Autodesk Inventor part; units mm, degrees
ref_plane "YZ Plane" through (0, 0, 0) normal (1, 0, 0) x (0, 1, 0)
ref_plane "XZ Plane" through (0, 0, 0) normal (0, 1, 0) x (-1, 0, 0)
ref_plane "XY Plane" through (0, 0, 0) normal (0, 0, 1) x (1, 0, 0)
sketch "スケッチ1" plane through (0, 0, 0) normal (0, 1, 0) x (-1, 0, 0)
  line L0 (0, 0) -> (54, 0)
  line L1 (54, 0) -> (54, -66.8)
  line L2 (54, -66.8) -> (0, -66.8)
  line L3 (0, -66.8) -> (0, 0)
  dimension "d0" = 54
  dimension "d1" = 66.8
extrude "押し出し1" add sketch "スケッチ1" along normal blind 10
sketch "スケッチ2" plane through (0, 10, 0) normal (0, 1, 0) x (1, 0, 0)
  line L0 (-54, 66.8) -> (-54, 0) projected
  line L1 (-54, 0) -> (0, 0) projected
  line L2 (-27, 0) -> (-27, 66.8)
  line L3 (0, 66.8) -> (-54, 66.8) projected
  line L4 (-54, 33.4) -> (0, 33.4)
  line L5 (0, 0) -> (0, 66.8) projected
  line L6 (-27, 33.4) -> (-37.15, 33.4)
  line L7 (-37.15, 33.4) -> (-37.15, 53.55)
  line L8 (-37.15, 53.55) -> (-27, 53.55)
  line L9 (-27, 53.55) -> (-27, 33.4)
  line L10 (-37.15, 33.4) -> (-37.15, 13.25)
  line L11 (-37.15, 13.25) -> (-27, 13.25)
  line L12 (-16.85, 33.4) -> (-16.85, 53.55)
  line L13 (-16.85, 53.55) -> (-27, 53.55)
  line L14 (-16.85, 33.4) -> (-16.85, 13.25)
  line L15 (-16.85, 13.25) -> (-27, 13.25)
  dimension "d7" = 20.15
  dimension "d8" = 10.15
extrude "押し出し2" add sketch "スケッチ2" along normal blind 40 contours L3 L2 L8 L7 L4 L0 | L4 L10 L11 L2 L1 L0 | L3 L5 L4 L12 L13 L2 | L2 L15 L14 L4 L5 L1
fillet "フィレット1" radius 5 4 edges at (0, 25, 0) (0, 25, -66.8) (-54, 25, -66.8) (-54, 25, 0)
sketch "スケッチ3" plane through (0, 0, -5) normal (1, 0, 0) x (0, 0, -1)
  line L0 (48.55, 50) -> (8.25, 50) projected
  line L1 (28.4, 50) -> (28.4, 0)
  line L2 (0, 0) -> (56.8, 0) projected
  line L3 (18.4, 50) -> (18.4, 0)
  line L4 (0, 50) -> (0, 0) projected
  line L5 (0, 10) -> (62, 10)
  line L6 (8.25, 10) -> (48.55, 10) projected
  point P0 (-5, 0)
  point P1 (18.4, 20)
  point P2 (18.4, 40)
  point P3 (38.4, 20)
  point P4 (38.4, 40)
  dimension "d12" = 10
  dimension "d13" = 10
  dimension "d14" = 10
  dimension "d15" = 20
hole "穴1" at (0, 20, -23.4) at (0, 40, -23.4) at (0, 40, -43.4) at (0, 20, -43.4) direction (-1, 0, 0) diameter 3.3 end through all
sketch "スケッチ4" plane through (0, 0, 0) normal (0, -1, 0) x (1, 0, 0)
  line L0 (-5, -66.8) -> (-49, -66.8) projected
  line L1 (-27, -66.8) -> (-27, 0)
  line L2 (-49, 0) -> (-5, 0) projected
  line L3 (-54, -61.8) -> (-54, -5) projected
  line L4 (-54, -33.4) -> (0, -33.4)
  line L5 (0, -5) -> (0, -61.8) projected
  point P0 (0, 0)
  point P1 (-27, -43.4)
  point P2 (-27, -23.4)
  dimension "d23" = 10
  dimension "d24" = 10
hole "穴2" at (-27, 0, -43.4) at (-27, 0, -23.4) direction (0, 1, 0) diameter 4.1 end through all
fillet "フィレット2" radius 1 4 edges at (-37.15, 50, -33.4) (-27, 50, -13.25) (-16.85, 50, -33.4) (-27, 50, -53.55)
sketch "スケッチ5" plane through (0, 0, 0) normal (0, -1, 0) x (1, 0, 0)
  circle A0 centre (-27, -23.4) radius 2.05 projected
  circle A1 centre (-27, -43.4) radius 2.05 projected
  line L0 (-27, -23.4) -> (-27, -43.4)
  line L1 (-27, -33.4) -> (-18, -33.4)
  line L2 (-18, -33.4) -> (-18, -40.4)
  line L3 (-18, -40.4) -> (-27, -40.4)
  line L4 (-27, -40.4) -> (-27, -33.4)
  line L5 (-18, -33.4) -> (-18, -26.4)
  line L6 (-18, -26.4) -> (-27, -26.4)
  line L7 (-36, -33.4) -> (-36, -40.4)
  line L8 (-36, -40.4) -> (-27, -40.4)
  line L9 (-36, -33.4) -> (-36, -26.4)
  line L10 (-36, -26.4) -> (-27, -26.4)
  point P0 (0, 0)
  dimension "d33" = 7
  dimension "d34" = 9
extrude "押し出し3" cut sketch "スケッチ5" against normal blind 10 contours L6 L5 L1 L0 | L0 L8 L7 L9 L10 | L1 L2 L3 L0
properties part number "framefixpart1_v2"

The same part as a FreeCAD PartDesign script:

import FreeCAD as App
import Part
import Sketcher
from FreeCAD import Vector


def edges_at(feature, points):
    """Names of the edges that pass closest to the given points."""
    edges = feature.Shape.Edges
    near = lambda p: min(range(len(edges)), key=lambda i: edges[i].distToShape(Part.Vertex(*p))[0])
    return sorted({f"Edge{near(p) + 1}" for p in points})


def add_polygon(sketch, points):
    """Adds a closed chain of lines whose ends are joined by coincident constraints."""
    first, n = sketch.GeometryCount, len(points)
    for a, b in zip(points, points[1:] + points[:1]):
        sketch.addGeometry(Part.LineSegment(App.Vector(*a, 0), App.Vector(*b, 0)), False)
    for i in range(n):
        sketch.addConstraint(Sketcher.Constraint("Coincident", first + i, 2, first + (i + 1) % n, 1))

doc = App.newDocument("Part")
body = doc.addObject("PartDesign::Body", "Body")

# Sketch on XZ plane
sketch1 = doc.addObject("Sketcher::SketchObject", "Sketch")
body.addObject(sketch1)
sketch1.AttachmentSupport = (doc.XZ_Plane, [""])
sketch1.MapMode = "FlatFace"
add_polygon(sketch1, [(-54, 0), (0, 0), (0, -66.8), (-54, -66.8)])  # lines 0-3
sketch1.addConstraint([
    Sketcher.Constraint("Horizontal", 0),
    Sketcher.Constraint("Vertical", 1),
    Sketcher.Constraint("Horizontal", 2),
    Sketcher.Constraint("Vertical", 3),
    Sketcher.Constraint("Coincident", 0, 2, -1, 1),
    Sketcher.Constraint("DistanceX", 0, 1, 0, 2, 54.0),
    Sketcher.Constraint("DistanceY", 1, 2, 1, 1, 66.8),
])
pad1 = doc.addObject("PartDesign::Pad", "Pad")
body.addObject(pad1)
pad1.Profile = sketch1
pad1.Length = 10
pad1.Reversed = True

# Sketch on XZ plane
sketch2 = doc.addObject("Sketcher::SketchObject", "Sketch001")
body.addObject(sketch2)
sketch2.AttachmentSupport = (doc.XZ_Plane, [""])
sketch2.MapMode = "FlatFace"
sketch2.AttachmentOffset = App.Placement(Vector(0, 0, -10), App.Rotation())
add_polygon(sketch2, [(-54, -66.8), (-54, 0), (0, 0), (0, -66.8)])  # lines 0-3
add_polygon(sketch2, [(-37.15, -53.55), (-16.85, -53.55), (-16.85, -13.25), (-37.15, -13.25)])  # lines 4-7
sketch2.addConstraint([
    Sketcher.Constraint("Vertical", 0),
    Sketcher.Constraint("Horizontal", 1),
    Sketcher.Constraint("Vertical", 2),
    Sketcher.Constraint("Horizontal", 3),
    Sketcher.Constraint("Horizontal", 4),
    Sketcher.Constraint("Vertical", 5),
    Sketcher.Constraint("Horizontal", 6),
    Sketcher.Constraint("Vertical", 7),
    Sketcher.Constraint("Coincident", 1, 2, -1, 1),
    Sketcher.Constraint("DistanceX", 1, 1, 1, 2, 54.0),
    Sketcher.Constraint("DistanceX", 4, 1, 4, 2, 20.3),
    Sketcher.Constraint("DistanceY", 0, 1, 0, 2, 66.8),
    Sketcher.Constraint("DistanceY", 5, 1, 5, 2, 40.3),
    Sketcher.Constraint("DistanceX", 4, 2, -1, 1, 16.85),
    Sketcher.Constraint("DistanceY", 4, 2, -1, 1, 53.55),
])
pad2 = doc.addObject("PartDesign::Pad", "Pad001")
body.addObject(pad2)
pad2.Profile = sketch2
pad2.Length = 40
pad2.Reversed = True
doc.recompute()

fillet = doc.addObject("PartDesign::Fillet", "Fillet")
body.addObject(fillet)
fillet.Base = (pad2, edges_at(pad2, [
    (0, 25, 0),
    (0, 25, -66.8),
    (-54, 25, -66.8),
    (-54, 25, 0),
]))
fillet.Radius = 5

# Sketch on YZ plane
sketch3 = doc.addObject("Sketcher::SketchObject", "Sketch002")
body.addObject(sketch3)
sketch3.AttachmentSupport = (doc.YZ_Plane, [""])
sketch3.MapMode = "FlatFace"
sketch3.addGeometry([
    Part.Circle(Vector(20, -23.4, 0), Vector(0, 0, 1), 1.65),
    Part.Circle(Vector(40, -23.4, 0), Vector(0, 0, 1), 1.65),
    Part.Circle(Vector(40, -43.4, 0), Vector(0, 0, 1), 1.65),
    Part.Circle(Vector(20, -43.4, 0), Vector(0, 0, 1), 1.65),
], False)
sketch3.addConstraint([
    Sketcher.Constraint("Equal", 0, 1),
    Sketcher.Constraint("Equal", 1, 2),
    Sketcher.Constraint("Equal", 2, 3),
    Sketcher.Constraint("Horizontal", 0, 3, 1, 3),
    Sketcher.Constraint("Horizontal", 2, 3, 3, 3),
    Sketcher.Constraint("Vertical", 1, 3, 2, 3),
    Sketcher.Constraint("Vertical", 0, 3, 3, 3),
    Sketcher.Constraint("Diameter", 0, 3.3),
    Sketcher.Constraint("DistanceX", -1, 1, 0, 3, 20.0),
    Sketcher.Constraint("DistanceX", -1, 1, 1, 3, 40.0),
    Sketcher.Constraint("DistanceY", 2, 3, 1, 3, 20.0),
    Sketcher.Constraint("DistanceY", 0, 3, -1, 1, 23.4),
])
doc.recompute()
hole = doc.addObject("PartDesign::Hole", "Hole")
body.addObject(hole)
hole.Profile = sketch3
hole.ThreadType = "None"
hole.Diameter = 3.3
hole.DepthType = "ThroughAll"

# Sketch on XZ plane
sketch4 = doc.addObject("Sketcher::SketchObject", "Sketch003")
body.addObject(sketch4)
sketch4.AttachmentSupport = (doc.XZ_Plane, [""])
sketch4.MapMode = "FlatFace"
sketch4.addGeometry([
    Part.Circle(Vector(-27, -43.4, 0), Vector(0, 0, 1), 2.05),
    Part.Circle(Vector(-27, -23.4, 0), Vector(0, 0, 1), 2.05),
], False)
sketch4.addConstraint([
    Sketcher.Constraint("Equal", 0, 1),
    Sketcher.Constraint("Vertical", 0, 3, 1, 3),
    Sketcher.Constraint("Diameter", 0, 4.1),
    Sketcher.Constraint("DistanceX", 0, 3, -1, 1, 27.0),
    Sketcher.Constraint("DistanceY", 0, 3, 1, 3, 20.0),
    Sketcher.Constraint("DistanceY", 0, 3, -1, 1, 43.4),
])
doc.recompute()
hole2 = doc.addObject("PartDesign::Hole", "Hole001")
body.addObject(hole2)
hole2.Profile = sketch4
hole2.ThreadType = "None"
hole2.Diameter = 4.1
hole2.DepthType = "ThroughAll"
doc.recompute()

fillet2 = doc.addObject("PartDesign::Fillet", "Fillet001")
body.addObject(fillet2)
fillet2.Base = (hole2, edges_at(hole2, [
    (-37.15, 50, -33.4),
    (-27, 50, -13.25),
    (-16.85, 50, -33.4),
    (-27, 50, -53.55),
]))
fillet2.Radius = 1

# Sketch on XZ plane
sketch5 = doc.addObject("Sketcher::SketchObject", "Sketch004")
body.addObject(sketch5)
sketch5.AttachmentSupport = (doc.XZ_Plane, [""])
sketch5.MapMode = "FlatFace"
add_polygon(sketch5, [(-18, -26.4), (-36, -26.4), (-36, -40.4), (-18, -40.4)])  # lines 0-3
sketch5.addConstraint([
    Sketcher.Constraint("Horizontal", 0),
    Sketcher.Constraint("Vertical", 1),
    Sketcher.Constraint("Horizontal", 2),
    Sketcher.Constraint("Vertical", 3),
    Sketcher.Constraint("DistanceX", 0, 2, 0, 1, 18.0),
    Sketcher.Constraint("DistanceY", 1, 2, 1, 1, 14.0),
    Sketcher.Constraint("DistanceX", 0, 2, -1, 1, 36.0),
    Sketcher.Constraint("DistanceY", 0, 2, -1, 1, 26.4),
])
pocket1 = doc.addObject("PartDesign::Pocket", "Pocket")
body.addObject(pocket1)
pocket1.Profile = sketch5
pocket1.Length = 10

doc.recompute()
